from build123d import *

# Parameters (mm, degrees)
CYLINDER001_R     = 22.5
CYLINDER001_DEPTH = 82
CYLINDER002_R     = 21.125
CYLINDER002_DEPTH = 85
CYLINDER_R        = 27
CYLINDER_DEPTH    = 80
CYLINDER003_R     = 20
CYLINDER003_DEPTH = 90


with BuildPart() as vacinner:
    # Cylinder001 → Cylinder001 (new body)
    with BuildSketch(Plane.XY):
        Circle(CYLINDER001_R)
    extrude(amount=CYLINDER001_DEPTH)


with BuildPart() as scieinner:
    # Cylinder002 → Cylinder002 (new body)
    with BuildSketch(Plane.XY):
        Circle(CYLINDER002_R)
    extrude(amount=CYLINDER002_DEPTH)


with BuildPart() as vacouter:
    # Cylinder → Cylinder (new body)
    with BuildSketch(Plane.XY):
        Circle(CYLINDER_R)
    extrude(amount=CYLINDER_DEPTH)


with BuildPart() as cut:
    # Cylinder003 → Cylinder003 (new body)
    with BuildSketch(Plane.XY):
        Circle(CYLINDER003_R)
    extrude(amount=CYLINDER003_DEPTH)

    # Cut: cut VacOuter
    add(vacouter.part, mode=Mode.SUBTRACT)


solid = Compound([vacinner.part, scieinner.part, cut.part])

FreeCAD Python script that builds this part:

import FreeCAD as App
import Part
import Sketcher
from FreeCAD import Vector
Q = App.Units.Quantity

doc = App.newDocument("Part")
params = doc.addObject("Spreadsheet::Sheet", "Params")
for row, (alias, value) in enumerate([
    ("sketch1_diameter", "45 mm"),
    ("pad1_length", "82 mm"),
    ("sketch2_diameter", "42.25 mm"),
    ("pad2_length", "85 mm"),
    ("sketch3_diameter", "54 mm"),
    ("pad3_length", "80 mm"),
    ("sketch4_diameter", "40 mm"),
    ("pad4_length", "90 mm"),
], start=1):
    params.set(f"A{row}", alias)
    params.set(f"B{row}", "=" + value)
    params.setAlias(f"B{row}", alias)

body = doc.addObject("PartDesign::Body", "Body")

sketch1 = body.newObject("Sketcher::SketchObject", "Sketch")
sketch1.AttachmentSupport = (doc.getObject("XY_Plane"), [""])
sketch1.MapMode = "FlatFace"
sketch1.addGeometry(Part.Circle(Vector(0, 0, 0), Vector(0, 0, 1), 22.5), False)
sketch1.addConstraint(Sketcher.Constraint("Coincident", 0, 3, -1, 1))
sketch1.addConstraint(Sketcher.Constraint("Diameter", 0, Q("45 mm")))
sketch1.setExpression("Constraints[1]", "Params.sketch1_diameter")
pad1 = body.newObject("PartDesign::Pad", "Pad")
pad1.Profile = sketch1
pad1.setExpression("Length", "Params.pad1_length")
body2 = doc.addObject("PartDesign::Body", "Body001")

sketch2 = body2.newObject("Sketcher::SketchObject", "Sketch001")
sketch2.AttachmentSupport = (doc.getObject("XY_Plane001"), [""])
sketch2.MapMode = "FlatFace"
sketch2.addGeometry(Part.Circle(Vector(0, 0, 0), Vector(0, 0, 1), 21.125), False)
sketch2.addConstraint(Sketcher.Constraint("Coincident", 0, 3, -1, 1))
sketch2.addConstraint(Sketcher.Constraint("Diameter", 0, Q("42.25 mm")))
sketch2.setExpression("Constraints[1]", "Params.sketch2_diameter")
pad2 = body2.newObject("PartDesign::Pad", "Pad001")
pad2.Profile = sketch2
pad2.setExpression("Length", "Params.pad2_length")
body3 = doc.addObject("PartDesign::Body", "Body002")

sketch3 = body3.newObject("Sketcher::SketchObject", "Sketch002")
sketch3.AttachmentSupport = (doc.getObject("XY_Plane002"), [""])
sketch3.MapMode = "FlatFace"
sketch3.addGeometry(Part.Circle(Vector(0, 0, 0), Vector(0, 0, 1), 27), False)
sketch3.addConstraint(Sketcher.Constraint("Coincident", 0, 3, -1, 1))
sketch3.addConstraint(Sketcher.Constraint("Diameter", 0, Q("54 mm")))
sketch3.setExpression("Constraints[1]", "Params.sketch3_diameter")
pad3 = body3.newObject("PartDesign::Pad", "Pad002")
pad3.Profile = sketch3
pad3.setExpression("Length", "Params.pad3_length")
body4 = doc.addObject("PartDesign::Body", "Body003")

sketch4 = body4.newObject("Sketcher::SketchObject", "Sketch003")
sketch4.AttachmentSupport = (doc.getObject("XY_Plane003"), [""])
sketch4.MapMode = "FlatFace"
sketch4.addGeometry(Part.Circle(Vector(0, 0, 0), Vector(0, 0, 1), 20), False)
sketch4.addConstraint(Sketcher.Constraint("Coincident", 0, 3, -1, 1))
sketch4.addConstraint(Sketcher.Constraint("Diameter", 0, Q("40 mm")))
sketch4.setExpression("Constraints[1]", "Params.sketch4_diameter")
pad4 = body4.newObject("PartDesign::Pad", "Pad003")
pad4.Profile = sketch4
pad4.setExpression("Length", "Params.pad4_length")
doc.recompute()

boolean = body4.newObject("PartDesign::Boolean", "Boolean")
boolean.Type = "Cut"
boolean.addObjects([body3])

doc.recompute()
